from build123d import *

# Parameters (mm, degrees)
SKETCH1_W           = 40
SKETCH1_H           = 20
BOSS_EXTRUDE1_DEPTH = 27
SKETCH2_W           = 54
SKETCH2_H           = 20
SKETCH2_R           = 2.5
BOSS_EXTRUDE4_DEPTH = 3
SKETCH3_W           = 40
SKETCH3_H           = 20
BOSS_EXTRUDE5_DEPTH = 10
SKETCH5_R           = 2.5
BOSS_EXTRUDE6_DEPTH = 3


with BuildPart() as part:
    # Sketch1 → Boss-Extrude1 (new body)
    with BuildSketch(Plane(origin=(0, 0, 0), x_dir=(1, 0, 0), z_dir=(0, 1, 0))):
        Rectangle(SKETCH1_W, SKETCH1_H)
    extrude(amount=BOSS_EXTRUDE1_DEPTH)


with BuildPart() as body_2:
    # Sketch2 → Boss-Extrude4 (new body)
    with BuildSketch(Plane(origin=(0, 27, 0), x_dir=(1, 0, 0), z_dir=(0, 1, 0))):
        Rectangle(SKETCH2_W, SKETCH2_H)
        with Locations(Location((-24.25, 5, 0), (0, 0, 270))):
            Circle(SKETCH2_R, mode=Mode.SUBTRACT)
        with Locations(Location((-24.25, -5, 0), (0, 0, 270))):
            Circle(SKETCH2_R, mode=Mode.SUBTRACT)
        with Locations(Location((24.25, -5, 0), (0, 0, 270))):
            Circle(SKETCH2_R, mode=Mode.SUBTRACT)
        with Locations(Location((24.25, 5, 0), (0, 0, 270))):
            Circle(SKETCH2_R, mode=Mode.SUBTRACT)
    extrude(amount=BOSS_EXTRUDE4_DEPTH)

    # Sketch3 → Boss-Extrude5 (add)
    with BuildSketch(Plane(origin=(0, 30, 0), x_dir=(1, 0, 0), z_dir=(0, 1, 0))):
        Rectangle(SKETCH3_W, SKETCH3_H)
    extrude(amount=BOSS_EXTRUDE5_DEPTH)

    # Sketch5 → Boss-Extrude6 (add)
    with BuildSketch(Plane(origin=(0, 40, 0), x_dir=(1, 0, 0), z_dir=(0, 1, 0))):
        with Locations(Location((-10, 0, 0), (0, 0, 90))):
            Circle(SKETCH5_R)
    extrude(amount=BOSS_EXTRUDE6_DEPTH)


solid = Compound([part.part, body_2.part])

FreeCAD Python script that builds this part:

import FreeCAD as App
import Part
import Sketcher
from FreeCAD import Vector


def add_polygon(sketch, points):
    """Adds a closed chain of lines whose ends are joined by coincident constraints."""
    first, n = sketch.GeometryCount, len(points)
    for a, b in zip(points, points[1:] + points[:1]):
        sketch.addGeometry(Part.LineSegment(App.Vector(*a, 0), App.Vector(*b, 0)), False)
    for i in range(n):
        sketch.addConstraint(Sketcher.Constraint("Coincident", first + i, 2, first + (i + 1) % n, 1))

doc = App.newDocument("Part")
body = doc.addObject("PartDesign::Body", "Body")

# Sketch on XZ plane
sketch1 = doc.addObject("Sketcher::SketchObject", "Sketch")
body.addObject(sketch1)
sketch1.AttachmentSupport = (doc.XZ_Plane, [""])
sketch1.MapMode = "FlatFace"
add_polygon(sketch1, [(-20, -10), (-20, 10), (20, 10), (20, -10)])  # lines 0-3
sketch1.addConstraint([
    Sketcher.Constraint("Vertical", 0),
    Sketcher.Constraint("Horizontal", 1),
    Sketcher.Constraint("Vertical", 2),
    Sketcher.Constraint("Horizontal", 3),
    Sketcher.Constraint("Symmetric", 0, 2, 2, 2, -1, 1),
    Sketcher.Constraint("DistanceX", 1, 1, 1, 2, 40.0),
    Sketcher.Constraint("DistanceY", 0, 1, 0, 2, 20.0),
])
pad1 = doc.addObject("PartDesign::Pad", "Pad")
body.addObject(pad1)
pad1.Profile = sketch1
pad1.Length = 27
pad1.Reversed = True
body2 = doc.addObject("PartDesign::Body", "Body001")

# Sketch on XZ plane
sketch2 = doc.addObject("Sketcher::SketchObject", "Sketch001")
body2.addObject(sketch2)
sketch2.AttachmentSupport = (doc.getObject("XZ_Plane001"), [""])
sketch2.MapMode = "FlatFace"
sketch2.AttachmentOffset = App.Placement(Vector(0, 0, -27), App.Rotation())
add_polygon(sketch2, [(-27, -10), (-27, 10), (27, 10), (27, -10)])  # lines 0-3
sketch2.addGeometry(Part.Circle(Vector(-24.2, 5, 0), Vector(0, 0, 1), 2.5), False)  # 4
sketch2.addGeometry(Part.Circle(Vector(24.2, 5, 0), Vector(0, 0, 1), 2.5), False)  # 5
sketch2.addGeometry(Part.Circle(Vector(-24.2, -5, 0), Vector(0, 0, 1), 2.5), False)  # 6
sketch2.addGeometry(Part.Circle(Vector(24.2, -5, 0), Vector(0, 0, 1), 2.5), False)  # 7
sketch2.addConstraint([
    Sketcher.Constraint("Vertical", 0),
    Sketcher.Constraint("Horizontal", 1),
    Sketcher.Constraint("Vertical", 2),
    Sketcher.Constraint("Horizontal", 3),
    Sketcher.Constraint("Equal", 4, 5),
    Sketcher.Constraint("Equal", 5, 6),
    Sketcher.Constraint("Equal", 6, 7),
    Sketcher.Constraint("Symmetric", 5, 3, 6, 3, -1, 1),
    Sketcher.Constraint("Symmetric", 4, 3, 7, 3, -1, 1),
    Sketcher.Constraint("Symmetric", 0, 2, 2, 2, -1, 1),
    Sketcher.Constraint("Symmetric", 4, 3, 5, 3, -2),
    Sketcher.Constraint("Diameter", 4, 5.0),
    Sketcher.Constraint("DistanceX", 1, 1, 1, 2, 54.0),
    Sketcher.Constraint("DistanceY", 0, 1, 0, 2, 20.0),
    Sketcher.Constraint("DistanceY", -1, 1, 4, 3, 5.0),
    Sketcher.Constraint("DistanceX", 4, 3, 5, 3, 48.5),
])
pad2 = doc.addObject("PartDesign::Pad", "Pad001")
body2.addObject(pad2)
pad2.Profile = sketch2
pad2.Length = 3
pad2.Reversed = True

# Sketch on XZ plane
sketch3 = doc.addObject("Sketcher::SketchObject", "Sketch002")
body2.addObject(sketch3)
sketch3.AttachmentSupport = (doc.getObject("XZ_Plane001"), [""])
sketch3.MapMode = "FlatFace"
sketch3.AttachmentOffset = App.Placement(Vector(0, 0, -30), App.Rotation())
add_polygon(sketch3, [(-20, -10), (-20, 10), (20, 10), (20, -10)])  # lines 0-3
sketch3.addConstraint([
    Sketcher.Constraint("Vertical", 0),
    Sketcher.Constraint("Horizontal", 1),
    Sketcher.Constraint("Vertical", 2),
    Sketcher.Constraint("Horizontal", 3),
    Sketcher.Constraint("Symmetric", 0, 2, 2, 2, -1, 1),
    Sketcher.Constraint("DistanceX", 1, 1, 1, 2, 40.0),
    Sketcher.Constraint("DistanceY", 0, 1, 0, 2, 20.0),
])
pad3 = doc.addObject("PartDesign::Pad", "Pad002")
body2.addObject(pad3)
pad3.Profile = sketch3
pad3.Length = 10
pad3.Reversed = True

# Sketch on XZ plane
sketch4 = doc.addObject("Sketcher::SketchObject", "Sketch003")
body2.addObject(sketch4)
sketch4.AttachmentSupport = (doc.getObject("XZ_Plane001"), [""])
sketch4.MapMode = "FlatFace"
sketch4.AttachmentOffset = App.Placement(Vector(0, 0, -40), App.Rotation())
sketch4.addGeometry(Part.Circle(Vector(-10, 0, 0), Vector(0, 0, 1), 2.5), False)
sketch4.addConstraint([
    Sketcher.Constraint("PointOnObject", 0, 3, -1),
    Sketcher.Constraint("Diameter", 0, 5.0),
    Sketcher.Constraint("DistanceX", 0, 3, -1, 1, 10.0),
])
pad4 = doc.addObject("PartDesign::Pad", "Pad003")
body2.addObject(pad4)
pad4.Profile = sketch4
pad4.Length = 3
pad4.Reversed = True

doc.recompute()
